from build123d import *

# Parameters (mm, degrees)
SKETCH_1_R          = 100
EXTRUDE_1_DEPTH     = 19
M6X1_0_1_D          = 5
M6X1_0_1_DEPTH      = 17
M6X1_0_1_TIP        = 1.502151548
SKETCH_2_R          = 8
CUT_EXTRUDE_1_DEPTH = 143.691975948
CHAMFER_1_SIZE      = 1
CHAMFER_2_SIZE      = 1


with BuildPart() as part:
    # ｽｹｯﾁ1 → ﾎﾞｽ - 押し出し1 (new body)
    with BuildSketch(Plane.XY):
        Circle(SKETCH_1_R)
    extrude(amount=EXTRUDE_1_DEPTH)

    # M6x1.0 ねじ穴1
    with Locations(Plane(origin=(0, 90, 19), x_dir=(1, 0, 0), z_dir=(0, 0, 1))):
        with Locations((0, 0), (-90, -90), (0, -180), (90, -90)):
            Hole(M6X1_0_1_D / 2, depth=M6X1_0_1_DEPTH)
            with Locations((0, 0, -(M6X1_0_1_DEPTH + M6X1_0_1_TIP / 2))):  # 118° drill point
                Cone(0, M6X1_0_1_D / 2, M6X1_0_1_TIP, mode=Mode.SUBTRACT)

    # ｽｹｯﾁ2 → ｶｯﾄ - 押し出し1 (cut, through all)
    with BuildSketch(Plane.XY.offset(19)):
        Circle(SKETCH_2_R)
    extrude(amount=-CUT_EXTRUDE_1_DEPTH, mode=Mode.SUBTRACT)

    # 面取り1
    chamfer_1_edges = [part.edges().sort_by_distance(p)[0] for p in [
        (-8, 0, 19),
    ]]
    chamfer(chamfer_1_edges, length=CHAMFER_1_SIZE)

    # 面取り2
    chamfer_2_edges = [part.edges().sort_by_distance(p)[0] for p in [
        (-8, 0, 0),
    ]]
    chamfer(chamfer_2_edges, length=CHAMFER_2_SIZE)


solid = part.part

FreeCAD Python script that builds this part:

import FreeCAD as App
import Part
import Sketcher


def edges_at(feature, points):
    """Names of the edges that pass closest to the given points."""
    edges = feature.Shape.Edges
    near = lambda p: min(range(len(edges)), key=lambda i: edges[i].distToShape(Part.Vertex(*p))[0])
    return sorted({f"Edge{near(p) + 1}" for p in points})

doc = App.newDocument("Part")
body = doc.addObject("PartDesign::Body", "Body")

sketch1 = body.newObject("Sketcher::SketchObject", "Sketch")
sketch1.AttachmentSupport = (doc.getObject("XY_Plane"), [""])
sketch1.MapMode = "FlatFace"
sketch1.addGeometry(Part.Circle(App.Vector(0, 0, 0), App.Vector(0, 0, 1), 100), False)
sketch1.addConstraint(Sketcher.Constraint("Coincident", 0, 3, -1, 1))
sketch1.addConstraint(Sketcher.Constraint("Diameter", 0, 200.0))
pad1 = body.newObject("PartDesign::Pad", "Pad")
pad1.Profile = sketch1
pad1.Length = 19

sketch2 = body.newObject("Sketcher::SketchObject", "Sketch001")
sketch2.AttachmentSupport = (doc.getObject("XY_Plane"), [""])
sketch2.MapMode = "FlatFace"
sketch2.AttachmentOffset = App.Placement(App.Vector(0, 0, 19), App.Rotation())
sketch2.addGeometry(Part.Circle(App.Vector(0, 90, 0), App.Vector(0, 0, 1), 2.5), False)
sketch2.addGeometry(Part.Circle(App.Vector(-90, 0, 0), App.Vector(0, 0, 1), 2.5), False)
sketch2.addGeometry(Part.Circle(App.Vector(0, -90, 0), App.Vector(0, 0, 1), 2.5), False)
sketch2.addGeometry(Part.Circle(App.Vector(90, 0, 0), App.Vector(0, 0, 1), 2.5), False)
sketch2.addConstraint(Sketcher.Constraint("Equal", 0, 1))
sketch2.addConstraint(Sketcher.Constraint("Equal", 1, 2))
sketch2.addConstraint(Sketcher.Constraint("Equal", 2, 3))
sketch2.addConstraint(Sketcher.Constraint("Symmetric", 0, 3, 2, 3, -1, 1))
sketch2.addConstraint(Sketcher.Constraint("Symmetric", 1, 3, 3, 3, -1, 1))
sketch2.addConstraint(Sketcher.Constraint("PointOnObject", 0, 3, -2))
sketch2.addConstraint(Sketcher.Constraint("PointOnObject", 1, 3, -1))
sketch2.addConstraint(Sketcher.Constraint("Diameter", 0, 5.0))
sketch2.addConstraint(Sketcher.Constraint("DistanceY", -1, 1, 0, 3, 90.0))
sketch2.addConstraint(Sketcher.Constraint("DistanceX", 1, 3, -1, 1, 90.0))
doc.recompute()
hole = body.newObject("PartDesign::Hole", "Hole")
hole.Profile = sketch2
hole.ThreadType = "None"
hole.Diameter = 5
hole.DepthType = "Dimension"
hole.Depth = 17
hole.DrillPoint = "Angled"
hole.DrillPointAngle = 118

sketch3 = body.newObject("Sketcher::SketchObject", "Sketch002")
sketch3.AttachmentSupport = (doc.getObject("XY_Plane"), [""])
sketch3.MapMode = "FlatFace"
sketch3.AttachmentOffset = App.Placement(App.Vector(0, 0, 19), App.Rotation())
sketch3.addGeometry(Part.Circle(App.Vector(0, 0, 0), App.Vector(0, 0, 1), 8), False)
sketch3.addConstraint(Sketcher.Constraint("Coincident", 0, 3, -1, 1))
sketch3.addConstraint(Sketcher.Constraint("Diameter", 0, 16.0))
pocket1 = body.newObject("PartDesign::Pocket", "Pocket")
pocket1.Profile = sketch3
pocket1.Type = "ThroughAll"
doc.recompute()

chamfer = body.newObject("PartDesign::Chamfer", "Chamfer")
chamfer.Base = (pocket1, edges_at(pocket1, [(-8, 0, 19)]))
chamfer.Size = 1
doc.recompute()

chamfer2 = body.newObject("PartDesign::Chamfer", "Chamfer001")
chamfer2.Base = (chamfer, edges_at(chamfer, [(-8, 0, 0)]))
chamfer2.Size = 1

doc.recompute()
